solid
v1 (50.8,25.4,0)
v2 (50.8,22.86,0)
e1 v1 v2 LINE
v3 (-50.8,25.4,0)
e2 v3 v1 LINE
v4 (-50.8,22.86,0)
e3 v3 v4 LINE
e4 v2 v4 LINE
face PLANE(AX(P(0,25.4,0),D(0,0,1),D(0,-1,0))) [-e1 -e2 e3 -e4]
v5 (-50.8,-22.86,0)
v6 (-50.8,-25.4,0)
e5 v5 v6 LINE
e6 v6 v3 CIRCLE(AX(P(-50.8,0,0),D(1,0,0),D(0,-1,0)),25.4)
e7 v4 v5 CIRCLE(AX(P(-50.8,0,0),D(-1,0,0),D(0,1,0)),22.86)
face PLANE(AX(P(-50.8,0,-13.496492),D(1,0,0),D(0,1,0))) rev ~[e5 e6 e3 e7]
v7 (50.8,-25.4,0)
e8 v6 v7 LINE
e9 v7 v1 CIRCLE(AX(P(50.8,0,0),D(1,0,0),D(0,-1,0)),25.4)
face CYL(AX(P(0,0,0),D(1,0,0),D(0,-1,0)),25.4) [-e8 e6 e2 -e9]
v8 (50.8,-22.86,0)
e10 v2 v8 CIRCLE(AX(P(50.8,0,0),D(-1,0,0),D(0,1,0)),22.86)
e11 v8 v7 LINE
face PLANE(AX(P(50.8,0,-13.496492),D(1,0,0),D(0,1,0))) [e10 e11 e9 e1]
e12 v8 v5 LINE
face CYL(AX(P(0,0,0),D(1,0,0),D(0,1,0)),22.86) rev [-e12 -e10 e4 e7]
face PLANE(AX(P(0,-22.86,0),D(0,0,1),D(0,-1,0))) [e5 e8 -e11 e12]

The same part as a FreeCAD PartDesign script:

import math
import FreeCAD as App
import Part
import Sketcher
Q = App.Units.Quantity

doc = App.newDocument("Part")
body = doc.addObject("PartDesign::Body", "Body")

# Sketch on YZ plane
sketch1 = body.newObject("Sketcher::SketchObject", "Sketch")
sketch1.AttachmentSupport = (doc.getObject("YZ_Plane"), [""])
sketch1.MapMode = "FlatFace"
sketch1.addGeometry([
    Part.LineSegment(App.Vector(-22.9, 0, 0), App.Vector(-25.4, 0, 0)),
    Part.ArcOfCircle(Part.Circle(App.Vector(0, 0, 0), App.Vector(0, 0, 1), 25.4), math.radians(180), math.radians(360)),
    Part.LineSegment(App.Vector(25.4, 0, 0), App.Vector(22.9, 0, 0)),
    Part.ArcOfCircle(Part.Circle(App.Vector(0, 0, 0), App.Vector(0, 0, 1), 22.9), math.radians(180), math.radians(360)),
], False)
sketch1.addConstraint([
    Sketcher.Constraint("Coincident", 0, 2, 1, 1),
    Sketcher.Constraint("Coincident", 1, 2, 2, 1),
    Sketcher.Constraint("Coincident", 2, 2, 3, 2),
    Sketcher.Constraint("Coincident", 3, 1, 0, 1),
    Sketcher.Constraint("Horizontal", 0),
    Sketcher.Constraint("Horizontal", 2),
    Sketcher.Constraint("Coincident", 1, 3, -1, 1),
    Sketcher.Constraint("Coincident", 3, 3, -1, 1),
    Sketcher.Constraint("PointOnObject", 0, 2, -1),
    Sketcher.Constraint("PointOnObject", 1, 2, -1),
    Sketcher.Constraint("Radius", 1, Q("1 in")),
    Sketcher.Constraint("Radius", 3, Q("0.9 in")),
])
pad1 = body.newObject("PartDesign::Pad", "Pad")
pad1.Profile = sketch1
pad1.Type = "TwoLengths"
pad1.Length = Q("2 in")
pad1.Length2 = Q("2 in")

doc.recompute()
